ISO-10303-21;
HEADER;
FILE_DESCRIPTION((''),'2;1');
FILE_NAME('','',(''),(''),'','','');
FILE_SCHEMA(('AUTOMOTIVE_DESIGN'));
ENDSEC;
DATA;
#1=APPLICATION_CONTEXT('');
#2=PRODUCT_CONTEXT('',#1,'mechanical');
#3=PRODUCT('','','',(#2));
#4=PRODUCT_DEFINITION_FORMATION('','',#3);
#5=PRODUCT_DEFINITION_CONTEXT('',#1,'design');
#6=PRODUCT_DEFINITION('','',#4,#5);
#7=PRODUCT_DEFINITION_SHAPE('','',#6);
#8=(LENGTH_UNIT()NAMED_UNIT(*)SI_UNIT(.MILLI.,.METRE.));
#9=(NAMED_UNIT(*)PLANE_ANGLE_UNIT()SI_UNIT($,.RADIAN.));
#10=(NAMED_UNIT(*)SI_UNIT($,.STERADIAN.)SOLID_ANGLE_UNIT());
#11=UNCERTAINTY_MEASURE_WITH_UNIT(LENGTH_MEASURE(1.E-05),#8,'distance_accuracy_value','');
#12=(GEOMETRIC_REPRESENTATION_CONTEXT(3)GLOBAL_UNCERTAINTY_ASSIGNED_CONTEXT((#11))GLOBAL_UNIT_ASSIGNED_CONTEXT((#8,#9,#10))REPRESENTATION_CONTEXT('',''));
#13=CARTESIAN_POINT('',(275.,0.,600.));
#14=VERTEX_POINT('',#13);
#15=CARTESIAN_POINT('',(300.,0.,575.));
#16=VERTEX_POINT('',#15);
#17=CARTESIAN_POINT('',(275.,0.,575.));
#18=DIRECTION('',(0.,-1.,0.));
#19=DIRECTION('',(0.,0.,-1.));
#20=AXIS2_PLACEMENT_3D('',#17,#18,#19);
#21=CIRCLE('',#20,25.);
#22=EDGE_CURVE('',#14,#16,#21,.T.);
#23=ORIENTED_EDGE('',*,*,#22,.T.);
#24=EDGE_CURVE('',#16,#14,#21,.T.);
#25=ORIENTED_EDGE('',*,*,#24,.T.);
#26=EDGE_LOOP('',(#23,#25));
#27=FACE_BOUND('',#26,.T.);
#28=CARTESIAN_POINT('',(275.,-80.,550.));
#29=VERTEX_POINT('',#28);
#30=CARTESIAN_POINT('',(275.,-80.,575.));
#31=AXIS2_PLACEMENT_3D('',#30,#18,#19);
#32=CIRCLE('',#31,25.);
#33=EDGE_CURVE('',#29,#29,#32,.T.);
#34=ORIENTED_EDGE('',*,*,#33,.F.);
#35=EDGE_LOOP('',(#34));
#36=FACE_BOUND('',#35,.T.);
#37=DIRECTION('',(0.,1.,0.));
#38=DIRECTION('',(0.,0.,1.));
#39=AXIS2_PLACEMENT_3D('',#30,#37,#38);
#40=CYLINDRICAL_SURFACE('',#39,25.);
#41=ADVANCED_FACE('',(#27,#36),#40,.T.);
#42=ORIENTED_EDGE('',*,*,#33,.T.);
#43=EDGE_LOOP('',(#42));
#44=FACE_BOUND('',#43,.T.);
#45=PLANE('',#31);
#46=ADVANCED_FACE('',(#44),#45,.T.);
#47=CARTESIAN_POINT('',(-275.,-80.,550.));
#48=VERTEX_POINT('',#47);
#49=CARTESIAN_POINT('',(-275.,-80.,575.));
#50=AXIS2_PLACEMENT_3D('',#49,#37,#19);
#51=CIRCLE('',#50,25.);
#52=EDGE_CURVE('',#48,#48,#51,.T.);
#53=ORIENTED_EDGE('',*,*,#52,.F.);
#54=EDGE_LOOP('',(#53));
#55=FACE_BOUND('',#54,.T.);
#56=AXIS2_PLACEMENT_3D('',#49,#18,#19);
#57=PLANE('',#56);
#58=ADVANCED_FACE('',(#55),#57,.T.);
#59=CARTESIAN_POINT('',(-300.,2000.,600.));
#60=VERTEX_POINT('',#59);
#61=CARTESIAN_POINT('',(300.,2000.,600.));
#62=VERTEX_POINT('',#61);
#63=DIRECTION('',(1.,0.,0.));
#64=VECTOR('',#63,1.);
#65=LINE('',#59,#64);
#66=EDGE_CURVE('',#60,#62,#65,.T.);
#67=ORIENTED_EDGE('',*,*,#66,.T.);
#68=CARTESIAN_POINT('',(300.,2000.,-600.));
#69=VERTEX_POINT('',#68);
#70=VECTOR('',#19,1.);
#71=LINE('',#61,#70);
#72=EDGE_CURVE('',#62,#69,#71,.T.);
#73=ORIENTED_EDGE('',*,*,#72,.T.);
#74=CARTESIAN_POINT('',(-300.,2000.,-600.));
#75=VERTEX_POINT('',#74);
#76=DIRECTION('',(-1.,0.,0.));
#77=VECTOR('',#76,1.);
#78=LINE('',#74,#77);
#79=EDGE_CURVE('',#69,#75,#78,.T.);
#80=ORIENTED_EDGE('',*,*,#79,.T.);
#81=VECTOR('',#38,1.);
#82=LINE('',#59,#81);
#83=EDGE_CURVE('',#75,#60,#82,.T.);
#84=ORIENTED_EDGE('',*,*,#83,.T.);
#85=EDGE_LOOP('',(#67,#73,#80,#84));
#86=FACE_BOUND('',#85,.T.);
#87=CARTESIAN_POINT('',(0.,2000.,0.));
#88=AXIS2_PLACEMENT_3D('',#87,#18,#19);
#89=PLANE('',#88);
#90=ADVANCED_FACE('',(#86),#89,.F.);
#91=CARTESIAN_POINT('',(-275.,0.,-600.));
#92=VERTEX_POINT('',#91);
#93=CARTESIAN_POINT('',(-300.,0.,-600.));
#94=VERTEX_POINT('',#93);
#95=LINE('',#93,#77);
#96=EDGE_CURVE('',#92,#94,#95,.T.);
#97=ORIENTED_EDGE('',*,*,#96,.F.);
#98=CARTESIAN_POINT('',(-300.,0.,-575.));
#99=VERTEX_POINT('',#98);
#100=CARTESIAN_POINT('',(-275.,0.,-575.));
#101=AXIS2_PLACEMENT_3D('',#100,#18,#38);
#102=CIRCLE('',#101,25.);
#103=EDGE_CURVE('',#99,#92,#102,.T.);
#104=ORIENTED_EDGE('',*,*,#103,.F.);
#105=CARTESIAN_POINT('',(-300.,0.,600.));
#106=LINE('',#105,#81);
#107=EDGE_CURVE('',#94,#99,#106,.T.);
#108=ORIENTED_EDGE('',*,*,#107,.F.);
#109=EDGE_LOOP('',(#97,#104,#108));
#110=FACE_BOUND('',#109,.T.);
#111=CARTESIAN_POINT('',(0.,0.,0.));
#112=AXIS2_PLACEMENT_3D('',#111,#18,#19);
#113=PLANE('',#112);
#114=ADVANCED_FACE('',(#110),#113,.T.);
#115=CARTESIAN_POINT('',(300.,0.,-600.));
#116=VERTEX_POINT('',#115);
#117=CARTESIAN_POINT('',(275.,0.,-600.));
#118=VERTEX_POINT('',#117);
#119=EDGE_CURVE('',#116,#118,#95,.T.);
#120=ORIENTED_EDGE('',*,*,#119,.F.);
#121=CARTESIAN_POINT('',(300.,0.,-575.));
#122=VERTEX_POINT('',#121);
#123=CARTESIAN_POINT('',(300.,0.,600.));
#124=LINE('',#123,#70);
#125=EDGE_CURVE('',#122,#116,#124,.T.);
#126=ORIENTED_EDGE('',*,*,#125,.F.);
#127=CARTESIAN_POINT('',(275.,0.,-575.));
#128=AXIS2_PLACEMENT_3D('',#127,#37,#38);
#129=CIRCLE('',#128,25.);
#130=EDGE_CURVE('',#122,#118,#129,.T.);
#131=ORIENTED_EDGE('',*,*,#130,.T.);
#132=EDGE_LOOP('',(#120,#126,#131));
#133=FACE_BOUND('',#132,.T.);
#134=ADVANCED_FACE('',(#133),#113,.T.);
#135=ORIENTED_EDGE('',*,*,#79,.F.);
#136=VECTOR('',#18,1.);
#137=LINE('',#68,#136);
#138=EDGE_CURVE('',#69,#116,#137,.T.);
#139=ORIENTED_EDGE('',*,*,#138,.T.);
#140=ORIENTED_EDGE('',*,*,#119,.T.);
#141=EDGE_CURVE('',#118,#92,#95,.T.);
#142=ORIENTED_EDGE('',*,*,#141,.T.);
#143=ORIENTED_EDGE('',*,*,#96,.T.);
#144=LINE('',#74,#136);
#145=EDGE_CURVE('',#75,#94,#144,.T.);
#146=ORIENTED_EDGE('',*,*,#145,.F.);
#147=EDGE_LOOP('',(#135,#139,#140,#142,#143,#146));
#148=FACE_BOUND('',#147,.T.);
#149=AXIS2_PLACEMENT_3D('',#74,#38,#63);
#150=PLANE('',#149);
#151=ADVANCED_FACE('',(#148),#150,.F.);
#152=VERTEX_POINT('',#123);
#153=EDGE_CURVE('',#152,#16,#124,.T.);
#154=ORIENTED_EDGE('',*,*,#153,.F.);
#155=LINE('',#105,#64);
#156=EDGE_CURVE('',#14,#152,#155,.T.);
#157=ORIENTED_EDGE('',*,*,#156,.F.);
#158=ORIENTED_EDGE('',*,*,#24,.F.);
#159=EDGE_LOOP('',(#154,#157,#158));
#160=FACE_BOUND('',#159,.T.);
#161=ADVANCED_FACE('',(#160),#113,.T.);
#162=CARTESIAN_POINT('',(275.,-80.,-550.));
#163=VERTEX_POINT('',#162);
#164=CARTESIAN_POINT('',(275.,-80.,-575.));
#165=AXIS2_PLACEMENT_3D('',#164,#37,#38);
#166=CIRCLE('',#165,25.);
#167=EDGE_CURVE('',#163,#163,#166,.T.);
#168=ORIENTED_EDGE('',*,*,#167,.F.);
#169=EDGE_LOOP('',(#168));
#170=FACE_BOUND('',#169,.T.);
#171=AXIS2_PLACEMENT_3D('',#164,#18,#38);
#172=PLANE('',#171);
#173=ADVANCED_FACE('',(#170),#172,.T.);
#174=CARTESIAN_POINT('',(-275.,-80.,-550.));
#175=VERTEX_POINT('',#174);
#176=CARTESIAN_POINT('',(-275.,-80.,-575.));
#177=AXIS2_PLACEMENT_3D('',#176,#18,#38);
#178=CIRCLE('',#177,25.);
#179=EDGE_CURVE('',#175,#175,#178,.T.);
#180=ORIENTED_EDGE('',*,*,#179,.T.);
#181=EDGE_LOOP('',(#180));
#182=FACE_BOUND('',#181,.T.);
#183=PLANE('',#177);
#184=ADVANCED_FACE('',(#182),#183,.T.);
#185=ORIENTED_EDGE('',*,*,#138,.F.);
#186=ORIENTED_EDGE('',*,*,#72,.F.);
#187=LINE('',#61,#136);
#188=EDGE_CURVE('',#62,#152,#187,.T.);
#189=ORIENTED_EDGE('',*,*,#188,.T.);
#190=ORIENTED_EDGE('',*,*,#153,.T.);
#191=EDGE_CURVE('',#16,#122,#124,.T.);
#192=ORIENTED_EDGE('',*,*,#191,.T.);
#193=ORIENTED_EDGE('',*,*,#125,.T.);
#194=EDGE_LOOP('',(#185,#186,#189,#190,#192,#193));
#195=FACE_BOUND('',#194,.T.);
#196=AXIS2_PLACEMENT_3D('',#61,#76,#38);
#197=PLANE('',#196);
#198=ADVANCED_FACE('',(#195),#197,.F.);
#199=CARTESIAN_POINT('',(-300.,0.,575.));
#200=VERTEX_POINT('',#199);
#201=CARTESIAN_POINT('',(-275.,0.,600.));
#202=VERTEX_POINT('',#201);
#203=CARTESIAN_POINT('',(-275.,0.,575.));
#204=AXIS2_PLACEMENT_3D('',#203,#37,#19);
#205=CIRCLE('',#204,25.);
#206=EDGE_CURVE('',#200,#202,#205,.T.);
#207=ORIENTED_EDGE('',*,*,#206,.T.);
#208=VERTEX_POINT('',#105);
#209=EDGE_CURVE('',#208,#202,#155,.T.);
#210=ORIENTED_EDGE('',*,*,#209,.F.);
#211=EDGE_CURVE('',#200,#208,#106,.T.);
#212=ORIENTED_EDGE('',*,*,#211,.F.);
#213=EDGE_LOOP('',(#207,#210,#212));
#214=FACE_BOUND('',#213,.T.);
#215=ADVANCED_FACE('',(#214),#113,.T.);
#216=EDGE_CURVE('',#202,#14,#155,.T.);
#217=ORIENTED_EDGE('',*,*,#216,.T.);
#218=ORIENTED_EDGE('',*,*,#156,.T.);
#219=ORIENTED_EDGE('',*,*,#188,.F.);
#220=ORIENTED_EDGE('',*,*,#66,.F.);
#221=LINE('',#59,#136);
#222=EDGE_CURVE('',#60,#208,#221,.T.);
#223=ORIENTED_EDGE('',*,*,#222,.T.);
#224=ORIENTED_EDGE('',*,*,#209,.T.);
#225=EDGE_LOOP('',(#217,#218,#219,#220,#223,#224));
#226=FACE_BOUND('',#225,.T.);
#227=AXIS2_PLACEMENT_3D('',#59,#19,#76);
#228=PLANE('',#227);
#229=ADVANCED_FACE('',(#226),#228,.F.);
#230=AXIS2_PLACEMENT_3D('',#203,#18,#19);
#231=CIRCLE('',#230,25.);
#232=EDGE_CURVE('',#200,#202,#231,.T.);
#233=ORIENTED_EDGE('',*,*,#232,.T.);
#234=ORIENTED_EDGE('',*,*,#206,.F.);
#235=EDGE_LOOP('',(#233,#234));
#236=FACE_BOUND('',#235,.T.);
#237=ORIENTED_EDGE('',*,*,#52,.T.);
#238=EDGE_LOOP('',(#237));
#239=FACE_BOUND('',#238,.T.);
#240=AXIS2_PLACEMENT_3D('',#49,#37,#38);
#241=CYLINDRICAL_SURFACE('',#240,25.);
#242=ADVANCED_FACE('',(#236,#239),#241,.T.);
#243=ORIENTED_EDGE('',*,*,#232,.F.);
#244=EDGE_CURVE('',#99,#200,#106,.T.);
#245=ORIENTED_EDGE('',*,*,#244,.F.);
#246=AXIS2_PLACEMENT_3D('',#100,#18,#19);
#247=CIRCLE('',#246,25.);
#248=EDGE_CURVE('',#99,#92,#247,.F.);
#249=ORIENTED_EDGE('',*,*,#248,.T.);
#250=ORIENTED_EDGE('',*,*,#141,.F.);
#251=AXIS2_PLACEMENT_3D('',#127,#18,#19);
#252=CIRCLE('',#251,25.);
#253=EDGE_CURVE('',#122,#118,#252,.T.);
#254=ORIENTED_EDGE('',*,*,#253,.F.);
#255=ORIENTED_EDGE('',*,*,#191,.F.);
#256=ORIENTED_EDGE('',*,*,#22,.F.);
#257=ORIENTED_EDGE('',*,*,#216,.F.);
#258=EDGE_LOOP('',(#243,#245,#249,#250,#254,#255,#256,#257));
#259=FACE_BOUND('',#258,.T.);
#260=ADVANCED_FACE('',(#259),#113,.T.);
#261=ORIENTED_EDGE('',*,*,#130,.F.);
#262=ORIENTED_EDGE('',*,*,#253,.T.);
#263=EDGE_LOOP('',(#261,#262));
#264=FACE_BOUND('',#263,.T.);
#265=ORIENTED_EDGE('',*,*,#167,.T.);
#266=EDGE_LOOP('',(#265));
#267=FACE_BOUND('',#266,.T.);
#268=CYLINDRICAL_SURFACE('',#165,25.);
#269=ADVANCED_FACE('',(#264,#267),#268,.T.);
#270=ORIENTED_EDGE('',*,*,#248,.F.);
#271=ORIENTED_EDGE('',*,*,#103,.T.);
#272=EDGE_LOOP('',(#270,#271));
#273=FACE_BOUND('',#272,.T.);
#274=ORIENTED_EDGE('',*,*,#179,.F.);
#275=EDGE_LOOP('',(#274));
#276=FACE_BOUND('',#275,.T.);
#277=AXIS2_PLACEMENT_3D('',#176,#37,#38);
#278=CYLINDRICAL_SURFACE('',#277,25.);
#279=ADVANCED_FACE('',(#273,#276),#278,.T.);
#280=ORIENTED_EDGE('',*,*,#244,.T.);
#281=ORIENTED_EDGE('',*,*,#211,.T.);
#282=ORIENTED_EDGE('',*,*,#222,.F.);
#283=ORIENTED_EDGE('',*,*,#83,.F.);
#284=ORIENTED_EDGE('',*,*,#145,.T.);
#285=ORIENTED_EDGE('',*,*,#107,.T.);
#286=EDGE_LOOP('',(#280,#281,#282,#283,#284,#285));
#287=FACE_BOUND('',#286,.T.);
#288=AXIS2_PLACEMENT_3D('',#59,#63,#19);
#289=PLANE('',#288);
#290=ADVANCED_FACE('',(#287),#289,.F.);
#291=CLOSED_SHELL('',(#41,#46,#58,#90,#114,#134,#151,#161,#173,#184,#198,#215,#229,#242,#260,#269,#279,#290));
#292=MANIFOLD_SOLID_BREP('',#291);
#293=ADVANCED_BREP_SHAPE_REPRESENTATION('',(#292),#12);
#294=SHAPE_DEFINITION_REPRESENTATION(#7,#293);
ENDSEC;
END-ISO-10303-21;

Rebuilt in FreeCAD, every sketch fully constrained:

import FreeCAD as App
import Part
import Sketcher
from FreeCAD import Vector
Q = App.Units.Quantity

doc = App.newDocument("Part")
body = doc.addObject("PartDesign::Body", "Body")

# Sketch on XZ plane
sketch1 = body.newObject("Sketcher::SketchObject", "Sketch")
sketch1.AttachmentSupport = (doc.getObject("XZ_Plane"), [""])
sketch1.MapMode = "FlatFace"
sketch1.addGeometry(Part.LineSegment(Vector(-300, -600, 0), Vector(-300, 600, 0)), False)
sketch1.addGeometry(Part.LineSegment(Vector(-300, 600, 0), Vector(300, 600, 0)), False)
sketch1.addGeometry(Part.LineSegment(Vector(300, 600, 0), Vector(300, -600, 0)), False)
sketch1.addGeometry(Part.LineSegment(Vector(300, -600, 0), Vector(-300, -600, 0)), False)
sketch1.addConstraint(Sketcher.Constraint("Coincident", 0, 2, 1, 1))
sketch1.addConstraint(Sketcher.Constraint("Coincident", 1, 2, 2, 1))
sketch1.addConstraint(Sketcher.Constraint("Coincident", 2, 2, 3, 1))
sketch1.addConstraint(Sketcher.Constraint("Coincident", 3, 2, 0, 1))
sketch1.addConstraint(Sketcher.Constraint("Vertical", 0))
sketch1.addConstraint(Sketcher.Constraint("Horizontal", 1))
sketch1.addConstraint(Sketcher.Constraint("Vertical", 2))
sketch1.addConstraint(Sketcher.Constraint("Horizontal", 3))
sketch1.addConstraint(Sketcher.Constraint("Symmetric", 0, 2, 2, 2, -1, 1))
sketch1.addConstraint(Sketcher.Constraint("DistanceX", 1, 1, 1, 2, Q("600 mm")))
sketch1.addConstraint(Sketcher.Constraint("DistanceY", 0, 1, 0, 2, Q("1200 mm")))
pad1 = body.newObject("PartDesign::Pad", "Pad")
pad1.Profile = sketch1
pad1.Length = 2000
pad1.Reversed = True

# Sketch on XZ plane
sketch2 = body.newObject("Sketcher::SketchObject", "Sketch001")
sketch2.AttachmentSupport = (doc.getObject("XZ_Plane"), [""])
sketch2.MapMode = "FlatFace"
sketch2.addGeometry(Part.Circle(Vector(275, 575, 0), Vector(0, 0, 1), 25), False)
sketch2.addConstraint(Sketcher.Constraint("Diameter", 0, Q("50 mm")))
sketch2.addConstraint(Sketcher.Constraint("DistanceX", -1, 1, 0, 3, Q("275 mm")))
sketch2.addConstraint(Sketcher.Constraint("DistanceY", -1, 1, 0, 3, Q("575 mm")))
pad2 = body.newObject("PartDesign::Pad", "Pad001")
pad2.Profile = sketch2
pad2.Length = 80
doc.recompute()

mirrored = body.newObject("PartDesign::Mirrored", "Mirrored")
mirrored.Originals = [pad2]
mirrored.MirrorPlane = (doc.getObject("YZ_Plane"), [""])
body.Tip = mirrored
doc.recompute()

mirrored2 = body.newObject("PartDesign::Mirrored", "Mirrored001")
mirrored2.Originals = [pad2]
mirrored2.MirrorPlane = (doc.getObject("XY_Plane"), [""])
body.Tip = mirrored2

# Sketch on XZ plane
sketch3 = body.newObject("Sketcher::SketchObject", "Sketch002")
sketch3.AttachmentSupport = (doc.getObject("XZ_Plane"), [""])
sketch3.MapMode = "FlatFace"
sketch3.addGeometry(Part.Circle(Vector(-275, -575, 0), Vector(0, 0, 1), 25), False)
sketch3.addConstraint(Sketcher.Constraint("Diameter", 0, Q("50 mm")))
sketch3.addConstraint(Sketcher.Constraint("DistanceX", 0, 3, -1, 1, Q("275 mm")))
sketch3.addConstraint(Sketcher.Constraint("DistanceY", 0, 3, -1, 1, Q("575 mm")))
pad3 = body.newObject("PartDesign::Pad", "Pad002")
pad3.Profile = sketch3
pad3.Length = 80

doc.recompute()
